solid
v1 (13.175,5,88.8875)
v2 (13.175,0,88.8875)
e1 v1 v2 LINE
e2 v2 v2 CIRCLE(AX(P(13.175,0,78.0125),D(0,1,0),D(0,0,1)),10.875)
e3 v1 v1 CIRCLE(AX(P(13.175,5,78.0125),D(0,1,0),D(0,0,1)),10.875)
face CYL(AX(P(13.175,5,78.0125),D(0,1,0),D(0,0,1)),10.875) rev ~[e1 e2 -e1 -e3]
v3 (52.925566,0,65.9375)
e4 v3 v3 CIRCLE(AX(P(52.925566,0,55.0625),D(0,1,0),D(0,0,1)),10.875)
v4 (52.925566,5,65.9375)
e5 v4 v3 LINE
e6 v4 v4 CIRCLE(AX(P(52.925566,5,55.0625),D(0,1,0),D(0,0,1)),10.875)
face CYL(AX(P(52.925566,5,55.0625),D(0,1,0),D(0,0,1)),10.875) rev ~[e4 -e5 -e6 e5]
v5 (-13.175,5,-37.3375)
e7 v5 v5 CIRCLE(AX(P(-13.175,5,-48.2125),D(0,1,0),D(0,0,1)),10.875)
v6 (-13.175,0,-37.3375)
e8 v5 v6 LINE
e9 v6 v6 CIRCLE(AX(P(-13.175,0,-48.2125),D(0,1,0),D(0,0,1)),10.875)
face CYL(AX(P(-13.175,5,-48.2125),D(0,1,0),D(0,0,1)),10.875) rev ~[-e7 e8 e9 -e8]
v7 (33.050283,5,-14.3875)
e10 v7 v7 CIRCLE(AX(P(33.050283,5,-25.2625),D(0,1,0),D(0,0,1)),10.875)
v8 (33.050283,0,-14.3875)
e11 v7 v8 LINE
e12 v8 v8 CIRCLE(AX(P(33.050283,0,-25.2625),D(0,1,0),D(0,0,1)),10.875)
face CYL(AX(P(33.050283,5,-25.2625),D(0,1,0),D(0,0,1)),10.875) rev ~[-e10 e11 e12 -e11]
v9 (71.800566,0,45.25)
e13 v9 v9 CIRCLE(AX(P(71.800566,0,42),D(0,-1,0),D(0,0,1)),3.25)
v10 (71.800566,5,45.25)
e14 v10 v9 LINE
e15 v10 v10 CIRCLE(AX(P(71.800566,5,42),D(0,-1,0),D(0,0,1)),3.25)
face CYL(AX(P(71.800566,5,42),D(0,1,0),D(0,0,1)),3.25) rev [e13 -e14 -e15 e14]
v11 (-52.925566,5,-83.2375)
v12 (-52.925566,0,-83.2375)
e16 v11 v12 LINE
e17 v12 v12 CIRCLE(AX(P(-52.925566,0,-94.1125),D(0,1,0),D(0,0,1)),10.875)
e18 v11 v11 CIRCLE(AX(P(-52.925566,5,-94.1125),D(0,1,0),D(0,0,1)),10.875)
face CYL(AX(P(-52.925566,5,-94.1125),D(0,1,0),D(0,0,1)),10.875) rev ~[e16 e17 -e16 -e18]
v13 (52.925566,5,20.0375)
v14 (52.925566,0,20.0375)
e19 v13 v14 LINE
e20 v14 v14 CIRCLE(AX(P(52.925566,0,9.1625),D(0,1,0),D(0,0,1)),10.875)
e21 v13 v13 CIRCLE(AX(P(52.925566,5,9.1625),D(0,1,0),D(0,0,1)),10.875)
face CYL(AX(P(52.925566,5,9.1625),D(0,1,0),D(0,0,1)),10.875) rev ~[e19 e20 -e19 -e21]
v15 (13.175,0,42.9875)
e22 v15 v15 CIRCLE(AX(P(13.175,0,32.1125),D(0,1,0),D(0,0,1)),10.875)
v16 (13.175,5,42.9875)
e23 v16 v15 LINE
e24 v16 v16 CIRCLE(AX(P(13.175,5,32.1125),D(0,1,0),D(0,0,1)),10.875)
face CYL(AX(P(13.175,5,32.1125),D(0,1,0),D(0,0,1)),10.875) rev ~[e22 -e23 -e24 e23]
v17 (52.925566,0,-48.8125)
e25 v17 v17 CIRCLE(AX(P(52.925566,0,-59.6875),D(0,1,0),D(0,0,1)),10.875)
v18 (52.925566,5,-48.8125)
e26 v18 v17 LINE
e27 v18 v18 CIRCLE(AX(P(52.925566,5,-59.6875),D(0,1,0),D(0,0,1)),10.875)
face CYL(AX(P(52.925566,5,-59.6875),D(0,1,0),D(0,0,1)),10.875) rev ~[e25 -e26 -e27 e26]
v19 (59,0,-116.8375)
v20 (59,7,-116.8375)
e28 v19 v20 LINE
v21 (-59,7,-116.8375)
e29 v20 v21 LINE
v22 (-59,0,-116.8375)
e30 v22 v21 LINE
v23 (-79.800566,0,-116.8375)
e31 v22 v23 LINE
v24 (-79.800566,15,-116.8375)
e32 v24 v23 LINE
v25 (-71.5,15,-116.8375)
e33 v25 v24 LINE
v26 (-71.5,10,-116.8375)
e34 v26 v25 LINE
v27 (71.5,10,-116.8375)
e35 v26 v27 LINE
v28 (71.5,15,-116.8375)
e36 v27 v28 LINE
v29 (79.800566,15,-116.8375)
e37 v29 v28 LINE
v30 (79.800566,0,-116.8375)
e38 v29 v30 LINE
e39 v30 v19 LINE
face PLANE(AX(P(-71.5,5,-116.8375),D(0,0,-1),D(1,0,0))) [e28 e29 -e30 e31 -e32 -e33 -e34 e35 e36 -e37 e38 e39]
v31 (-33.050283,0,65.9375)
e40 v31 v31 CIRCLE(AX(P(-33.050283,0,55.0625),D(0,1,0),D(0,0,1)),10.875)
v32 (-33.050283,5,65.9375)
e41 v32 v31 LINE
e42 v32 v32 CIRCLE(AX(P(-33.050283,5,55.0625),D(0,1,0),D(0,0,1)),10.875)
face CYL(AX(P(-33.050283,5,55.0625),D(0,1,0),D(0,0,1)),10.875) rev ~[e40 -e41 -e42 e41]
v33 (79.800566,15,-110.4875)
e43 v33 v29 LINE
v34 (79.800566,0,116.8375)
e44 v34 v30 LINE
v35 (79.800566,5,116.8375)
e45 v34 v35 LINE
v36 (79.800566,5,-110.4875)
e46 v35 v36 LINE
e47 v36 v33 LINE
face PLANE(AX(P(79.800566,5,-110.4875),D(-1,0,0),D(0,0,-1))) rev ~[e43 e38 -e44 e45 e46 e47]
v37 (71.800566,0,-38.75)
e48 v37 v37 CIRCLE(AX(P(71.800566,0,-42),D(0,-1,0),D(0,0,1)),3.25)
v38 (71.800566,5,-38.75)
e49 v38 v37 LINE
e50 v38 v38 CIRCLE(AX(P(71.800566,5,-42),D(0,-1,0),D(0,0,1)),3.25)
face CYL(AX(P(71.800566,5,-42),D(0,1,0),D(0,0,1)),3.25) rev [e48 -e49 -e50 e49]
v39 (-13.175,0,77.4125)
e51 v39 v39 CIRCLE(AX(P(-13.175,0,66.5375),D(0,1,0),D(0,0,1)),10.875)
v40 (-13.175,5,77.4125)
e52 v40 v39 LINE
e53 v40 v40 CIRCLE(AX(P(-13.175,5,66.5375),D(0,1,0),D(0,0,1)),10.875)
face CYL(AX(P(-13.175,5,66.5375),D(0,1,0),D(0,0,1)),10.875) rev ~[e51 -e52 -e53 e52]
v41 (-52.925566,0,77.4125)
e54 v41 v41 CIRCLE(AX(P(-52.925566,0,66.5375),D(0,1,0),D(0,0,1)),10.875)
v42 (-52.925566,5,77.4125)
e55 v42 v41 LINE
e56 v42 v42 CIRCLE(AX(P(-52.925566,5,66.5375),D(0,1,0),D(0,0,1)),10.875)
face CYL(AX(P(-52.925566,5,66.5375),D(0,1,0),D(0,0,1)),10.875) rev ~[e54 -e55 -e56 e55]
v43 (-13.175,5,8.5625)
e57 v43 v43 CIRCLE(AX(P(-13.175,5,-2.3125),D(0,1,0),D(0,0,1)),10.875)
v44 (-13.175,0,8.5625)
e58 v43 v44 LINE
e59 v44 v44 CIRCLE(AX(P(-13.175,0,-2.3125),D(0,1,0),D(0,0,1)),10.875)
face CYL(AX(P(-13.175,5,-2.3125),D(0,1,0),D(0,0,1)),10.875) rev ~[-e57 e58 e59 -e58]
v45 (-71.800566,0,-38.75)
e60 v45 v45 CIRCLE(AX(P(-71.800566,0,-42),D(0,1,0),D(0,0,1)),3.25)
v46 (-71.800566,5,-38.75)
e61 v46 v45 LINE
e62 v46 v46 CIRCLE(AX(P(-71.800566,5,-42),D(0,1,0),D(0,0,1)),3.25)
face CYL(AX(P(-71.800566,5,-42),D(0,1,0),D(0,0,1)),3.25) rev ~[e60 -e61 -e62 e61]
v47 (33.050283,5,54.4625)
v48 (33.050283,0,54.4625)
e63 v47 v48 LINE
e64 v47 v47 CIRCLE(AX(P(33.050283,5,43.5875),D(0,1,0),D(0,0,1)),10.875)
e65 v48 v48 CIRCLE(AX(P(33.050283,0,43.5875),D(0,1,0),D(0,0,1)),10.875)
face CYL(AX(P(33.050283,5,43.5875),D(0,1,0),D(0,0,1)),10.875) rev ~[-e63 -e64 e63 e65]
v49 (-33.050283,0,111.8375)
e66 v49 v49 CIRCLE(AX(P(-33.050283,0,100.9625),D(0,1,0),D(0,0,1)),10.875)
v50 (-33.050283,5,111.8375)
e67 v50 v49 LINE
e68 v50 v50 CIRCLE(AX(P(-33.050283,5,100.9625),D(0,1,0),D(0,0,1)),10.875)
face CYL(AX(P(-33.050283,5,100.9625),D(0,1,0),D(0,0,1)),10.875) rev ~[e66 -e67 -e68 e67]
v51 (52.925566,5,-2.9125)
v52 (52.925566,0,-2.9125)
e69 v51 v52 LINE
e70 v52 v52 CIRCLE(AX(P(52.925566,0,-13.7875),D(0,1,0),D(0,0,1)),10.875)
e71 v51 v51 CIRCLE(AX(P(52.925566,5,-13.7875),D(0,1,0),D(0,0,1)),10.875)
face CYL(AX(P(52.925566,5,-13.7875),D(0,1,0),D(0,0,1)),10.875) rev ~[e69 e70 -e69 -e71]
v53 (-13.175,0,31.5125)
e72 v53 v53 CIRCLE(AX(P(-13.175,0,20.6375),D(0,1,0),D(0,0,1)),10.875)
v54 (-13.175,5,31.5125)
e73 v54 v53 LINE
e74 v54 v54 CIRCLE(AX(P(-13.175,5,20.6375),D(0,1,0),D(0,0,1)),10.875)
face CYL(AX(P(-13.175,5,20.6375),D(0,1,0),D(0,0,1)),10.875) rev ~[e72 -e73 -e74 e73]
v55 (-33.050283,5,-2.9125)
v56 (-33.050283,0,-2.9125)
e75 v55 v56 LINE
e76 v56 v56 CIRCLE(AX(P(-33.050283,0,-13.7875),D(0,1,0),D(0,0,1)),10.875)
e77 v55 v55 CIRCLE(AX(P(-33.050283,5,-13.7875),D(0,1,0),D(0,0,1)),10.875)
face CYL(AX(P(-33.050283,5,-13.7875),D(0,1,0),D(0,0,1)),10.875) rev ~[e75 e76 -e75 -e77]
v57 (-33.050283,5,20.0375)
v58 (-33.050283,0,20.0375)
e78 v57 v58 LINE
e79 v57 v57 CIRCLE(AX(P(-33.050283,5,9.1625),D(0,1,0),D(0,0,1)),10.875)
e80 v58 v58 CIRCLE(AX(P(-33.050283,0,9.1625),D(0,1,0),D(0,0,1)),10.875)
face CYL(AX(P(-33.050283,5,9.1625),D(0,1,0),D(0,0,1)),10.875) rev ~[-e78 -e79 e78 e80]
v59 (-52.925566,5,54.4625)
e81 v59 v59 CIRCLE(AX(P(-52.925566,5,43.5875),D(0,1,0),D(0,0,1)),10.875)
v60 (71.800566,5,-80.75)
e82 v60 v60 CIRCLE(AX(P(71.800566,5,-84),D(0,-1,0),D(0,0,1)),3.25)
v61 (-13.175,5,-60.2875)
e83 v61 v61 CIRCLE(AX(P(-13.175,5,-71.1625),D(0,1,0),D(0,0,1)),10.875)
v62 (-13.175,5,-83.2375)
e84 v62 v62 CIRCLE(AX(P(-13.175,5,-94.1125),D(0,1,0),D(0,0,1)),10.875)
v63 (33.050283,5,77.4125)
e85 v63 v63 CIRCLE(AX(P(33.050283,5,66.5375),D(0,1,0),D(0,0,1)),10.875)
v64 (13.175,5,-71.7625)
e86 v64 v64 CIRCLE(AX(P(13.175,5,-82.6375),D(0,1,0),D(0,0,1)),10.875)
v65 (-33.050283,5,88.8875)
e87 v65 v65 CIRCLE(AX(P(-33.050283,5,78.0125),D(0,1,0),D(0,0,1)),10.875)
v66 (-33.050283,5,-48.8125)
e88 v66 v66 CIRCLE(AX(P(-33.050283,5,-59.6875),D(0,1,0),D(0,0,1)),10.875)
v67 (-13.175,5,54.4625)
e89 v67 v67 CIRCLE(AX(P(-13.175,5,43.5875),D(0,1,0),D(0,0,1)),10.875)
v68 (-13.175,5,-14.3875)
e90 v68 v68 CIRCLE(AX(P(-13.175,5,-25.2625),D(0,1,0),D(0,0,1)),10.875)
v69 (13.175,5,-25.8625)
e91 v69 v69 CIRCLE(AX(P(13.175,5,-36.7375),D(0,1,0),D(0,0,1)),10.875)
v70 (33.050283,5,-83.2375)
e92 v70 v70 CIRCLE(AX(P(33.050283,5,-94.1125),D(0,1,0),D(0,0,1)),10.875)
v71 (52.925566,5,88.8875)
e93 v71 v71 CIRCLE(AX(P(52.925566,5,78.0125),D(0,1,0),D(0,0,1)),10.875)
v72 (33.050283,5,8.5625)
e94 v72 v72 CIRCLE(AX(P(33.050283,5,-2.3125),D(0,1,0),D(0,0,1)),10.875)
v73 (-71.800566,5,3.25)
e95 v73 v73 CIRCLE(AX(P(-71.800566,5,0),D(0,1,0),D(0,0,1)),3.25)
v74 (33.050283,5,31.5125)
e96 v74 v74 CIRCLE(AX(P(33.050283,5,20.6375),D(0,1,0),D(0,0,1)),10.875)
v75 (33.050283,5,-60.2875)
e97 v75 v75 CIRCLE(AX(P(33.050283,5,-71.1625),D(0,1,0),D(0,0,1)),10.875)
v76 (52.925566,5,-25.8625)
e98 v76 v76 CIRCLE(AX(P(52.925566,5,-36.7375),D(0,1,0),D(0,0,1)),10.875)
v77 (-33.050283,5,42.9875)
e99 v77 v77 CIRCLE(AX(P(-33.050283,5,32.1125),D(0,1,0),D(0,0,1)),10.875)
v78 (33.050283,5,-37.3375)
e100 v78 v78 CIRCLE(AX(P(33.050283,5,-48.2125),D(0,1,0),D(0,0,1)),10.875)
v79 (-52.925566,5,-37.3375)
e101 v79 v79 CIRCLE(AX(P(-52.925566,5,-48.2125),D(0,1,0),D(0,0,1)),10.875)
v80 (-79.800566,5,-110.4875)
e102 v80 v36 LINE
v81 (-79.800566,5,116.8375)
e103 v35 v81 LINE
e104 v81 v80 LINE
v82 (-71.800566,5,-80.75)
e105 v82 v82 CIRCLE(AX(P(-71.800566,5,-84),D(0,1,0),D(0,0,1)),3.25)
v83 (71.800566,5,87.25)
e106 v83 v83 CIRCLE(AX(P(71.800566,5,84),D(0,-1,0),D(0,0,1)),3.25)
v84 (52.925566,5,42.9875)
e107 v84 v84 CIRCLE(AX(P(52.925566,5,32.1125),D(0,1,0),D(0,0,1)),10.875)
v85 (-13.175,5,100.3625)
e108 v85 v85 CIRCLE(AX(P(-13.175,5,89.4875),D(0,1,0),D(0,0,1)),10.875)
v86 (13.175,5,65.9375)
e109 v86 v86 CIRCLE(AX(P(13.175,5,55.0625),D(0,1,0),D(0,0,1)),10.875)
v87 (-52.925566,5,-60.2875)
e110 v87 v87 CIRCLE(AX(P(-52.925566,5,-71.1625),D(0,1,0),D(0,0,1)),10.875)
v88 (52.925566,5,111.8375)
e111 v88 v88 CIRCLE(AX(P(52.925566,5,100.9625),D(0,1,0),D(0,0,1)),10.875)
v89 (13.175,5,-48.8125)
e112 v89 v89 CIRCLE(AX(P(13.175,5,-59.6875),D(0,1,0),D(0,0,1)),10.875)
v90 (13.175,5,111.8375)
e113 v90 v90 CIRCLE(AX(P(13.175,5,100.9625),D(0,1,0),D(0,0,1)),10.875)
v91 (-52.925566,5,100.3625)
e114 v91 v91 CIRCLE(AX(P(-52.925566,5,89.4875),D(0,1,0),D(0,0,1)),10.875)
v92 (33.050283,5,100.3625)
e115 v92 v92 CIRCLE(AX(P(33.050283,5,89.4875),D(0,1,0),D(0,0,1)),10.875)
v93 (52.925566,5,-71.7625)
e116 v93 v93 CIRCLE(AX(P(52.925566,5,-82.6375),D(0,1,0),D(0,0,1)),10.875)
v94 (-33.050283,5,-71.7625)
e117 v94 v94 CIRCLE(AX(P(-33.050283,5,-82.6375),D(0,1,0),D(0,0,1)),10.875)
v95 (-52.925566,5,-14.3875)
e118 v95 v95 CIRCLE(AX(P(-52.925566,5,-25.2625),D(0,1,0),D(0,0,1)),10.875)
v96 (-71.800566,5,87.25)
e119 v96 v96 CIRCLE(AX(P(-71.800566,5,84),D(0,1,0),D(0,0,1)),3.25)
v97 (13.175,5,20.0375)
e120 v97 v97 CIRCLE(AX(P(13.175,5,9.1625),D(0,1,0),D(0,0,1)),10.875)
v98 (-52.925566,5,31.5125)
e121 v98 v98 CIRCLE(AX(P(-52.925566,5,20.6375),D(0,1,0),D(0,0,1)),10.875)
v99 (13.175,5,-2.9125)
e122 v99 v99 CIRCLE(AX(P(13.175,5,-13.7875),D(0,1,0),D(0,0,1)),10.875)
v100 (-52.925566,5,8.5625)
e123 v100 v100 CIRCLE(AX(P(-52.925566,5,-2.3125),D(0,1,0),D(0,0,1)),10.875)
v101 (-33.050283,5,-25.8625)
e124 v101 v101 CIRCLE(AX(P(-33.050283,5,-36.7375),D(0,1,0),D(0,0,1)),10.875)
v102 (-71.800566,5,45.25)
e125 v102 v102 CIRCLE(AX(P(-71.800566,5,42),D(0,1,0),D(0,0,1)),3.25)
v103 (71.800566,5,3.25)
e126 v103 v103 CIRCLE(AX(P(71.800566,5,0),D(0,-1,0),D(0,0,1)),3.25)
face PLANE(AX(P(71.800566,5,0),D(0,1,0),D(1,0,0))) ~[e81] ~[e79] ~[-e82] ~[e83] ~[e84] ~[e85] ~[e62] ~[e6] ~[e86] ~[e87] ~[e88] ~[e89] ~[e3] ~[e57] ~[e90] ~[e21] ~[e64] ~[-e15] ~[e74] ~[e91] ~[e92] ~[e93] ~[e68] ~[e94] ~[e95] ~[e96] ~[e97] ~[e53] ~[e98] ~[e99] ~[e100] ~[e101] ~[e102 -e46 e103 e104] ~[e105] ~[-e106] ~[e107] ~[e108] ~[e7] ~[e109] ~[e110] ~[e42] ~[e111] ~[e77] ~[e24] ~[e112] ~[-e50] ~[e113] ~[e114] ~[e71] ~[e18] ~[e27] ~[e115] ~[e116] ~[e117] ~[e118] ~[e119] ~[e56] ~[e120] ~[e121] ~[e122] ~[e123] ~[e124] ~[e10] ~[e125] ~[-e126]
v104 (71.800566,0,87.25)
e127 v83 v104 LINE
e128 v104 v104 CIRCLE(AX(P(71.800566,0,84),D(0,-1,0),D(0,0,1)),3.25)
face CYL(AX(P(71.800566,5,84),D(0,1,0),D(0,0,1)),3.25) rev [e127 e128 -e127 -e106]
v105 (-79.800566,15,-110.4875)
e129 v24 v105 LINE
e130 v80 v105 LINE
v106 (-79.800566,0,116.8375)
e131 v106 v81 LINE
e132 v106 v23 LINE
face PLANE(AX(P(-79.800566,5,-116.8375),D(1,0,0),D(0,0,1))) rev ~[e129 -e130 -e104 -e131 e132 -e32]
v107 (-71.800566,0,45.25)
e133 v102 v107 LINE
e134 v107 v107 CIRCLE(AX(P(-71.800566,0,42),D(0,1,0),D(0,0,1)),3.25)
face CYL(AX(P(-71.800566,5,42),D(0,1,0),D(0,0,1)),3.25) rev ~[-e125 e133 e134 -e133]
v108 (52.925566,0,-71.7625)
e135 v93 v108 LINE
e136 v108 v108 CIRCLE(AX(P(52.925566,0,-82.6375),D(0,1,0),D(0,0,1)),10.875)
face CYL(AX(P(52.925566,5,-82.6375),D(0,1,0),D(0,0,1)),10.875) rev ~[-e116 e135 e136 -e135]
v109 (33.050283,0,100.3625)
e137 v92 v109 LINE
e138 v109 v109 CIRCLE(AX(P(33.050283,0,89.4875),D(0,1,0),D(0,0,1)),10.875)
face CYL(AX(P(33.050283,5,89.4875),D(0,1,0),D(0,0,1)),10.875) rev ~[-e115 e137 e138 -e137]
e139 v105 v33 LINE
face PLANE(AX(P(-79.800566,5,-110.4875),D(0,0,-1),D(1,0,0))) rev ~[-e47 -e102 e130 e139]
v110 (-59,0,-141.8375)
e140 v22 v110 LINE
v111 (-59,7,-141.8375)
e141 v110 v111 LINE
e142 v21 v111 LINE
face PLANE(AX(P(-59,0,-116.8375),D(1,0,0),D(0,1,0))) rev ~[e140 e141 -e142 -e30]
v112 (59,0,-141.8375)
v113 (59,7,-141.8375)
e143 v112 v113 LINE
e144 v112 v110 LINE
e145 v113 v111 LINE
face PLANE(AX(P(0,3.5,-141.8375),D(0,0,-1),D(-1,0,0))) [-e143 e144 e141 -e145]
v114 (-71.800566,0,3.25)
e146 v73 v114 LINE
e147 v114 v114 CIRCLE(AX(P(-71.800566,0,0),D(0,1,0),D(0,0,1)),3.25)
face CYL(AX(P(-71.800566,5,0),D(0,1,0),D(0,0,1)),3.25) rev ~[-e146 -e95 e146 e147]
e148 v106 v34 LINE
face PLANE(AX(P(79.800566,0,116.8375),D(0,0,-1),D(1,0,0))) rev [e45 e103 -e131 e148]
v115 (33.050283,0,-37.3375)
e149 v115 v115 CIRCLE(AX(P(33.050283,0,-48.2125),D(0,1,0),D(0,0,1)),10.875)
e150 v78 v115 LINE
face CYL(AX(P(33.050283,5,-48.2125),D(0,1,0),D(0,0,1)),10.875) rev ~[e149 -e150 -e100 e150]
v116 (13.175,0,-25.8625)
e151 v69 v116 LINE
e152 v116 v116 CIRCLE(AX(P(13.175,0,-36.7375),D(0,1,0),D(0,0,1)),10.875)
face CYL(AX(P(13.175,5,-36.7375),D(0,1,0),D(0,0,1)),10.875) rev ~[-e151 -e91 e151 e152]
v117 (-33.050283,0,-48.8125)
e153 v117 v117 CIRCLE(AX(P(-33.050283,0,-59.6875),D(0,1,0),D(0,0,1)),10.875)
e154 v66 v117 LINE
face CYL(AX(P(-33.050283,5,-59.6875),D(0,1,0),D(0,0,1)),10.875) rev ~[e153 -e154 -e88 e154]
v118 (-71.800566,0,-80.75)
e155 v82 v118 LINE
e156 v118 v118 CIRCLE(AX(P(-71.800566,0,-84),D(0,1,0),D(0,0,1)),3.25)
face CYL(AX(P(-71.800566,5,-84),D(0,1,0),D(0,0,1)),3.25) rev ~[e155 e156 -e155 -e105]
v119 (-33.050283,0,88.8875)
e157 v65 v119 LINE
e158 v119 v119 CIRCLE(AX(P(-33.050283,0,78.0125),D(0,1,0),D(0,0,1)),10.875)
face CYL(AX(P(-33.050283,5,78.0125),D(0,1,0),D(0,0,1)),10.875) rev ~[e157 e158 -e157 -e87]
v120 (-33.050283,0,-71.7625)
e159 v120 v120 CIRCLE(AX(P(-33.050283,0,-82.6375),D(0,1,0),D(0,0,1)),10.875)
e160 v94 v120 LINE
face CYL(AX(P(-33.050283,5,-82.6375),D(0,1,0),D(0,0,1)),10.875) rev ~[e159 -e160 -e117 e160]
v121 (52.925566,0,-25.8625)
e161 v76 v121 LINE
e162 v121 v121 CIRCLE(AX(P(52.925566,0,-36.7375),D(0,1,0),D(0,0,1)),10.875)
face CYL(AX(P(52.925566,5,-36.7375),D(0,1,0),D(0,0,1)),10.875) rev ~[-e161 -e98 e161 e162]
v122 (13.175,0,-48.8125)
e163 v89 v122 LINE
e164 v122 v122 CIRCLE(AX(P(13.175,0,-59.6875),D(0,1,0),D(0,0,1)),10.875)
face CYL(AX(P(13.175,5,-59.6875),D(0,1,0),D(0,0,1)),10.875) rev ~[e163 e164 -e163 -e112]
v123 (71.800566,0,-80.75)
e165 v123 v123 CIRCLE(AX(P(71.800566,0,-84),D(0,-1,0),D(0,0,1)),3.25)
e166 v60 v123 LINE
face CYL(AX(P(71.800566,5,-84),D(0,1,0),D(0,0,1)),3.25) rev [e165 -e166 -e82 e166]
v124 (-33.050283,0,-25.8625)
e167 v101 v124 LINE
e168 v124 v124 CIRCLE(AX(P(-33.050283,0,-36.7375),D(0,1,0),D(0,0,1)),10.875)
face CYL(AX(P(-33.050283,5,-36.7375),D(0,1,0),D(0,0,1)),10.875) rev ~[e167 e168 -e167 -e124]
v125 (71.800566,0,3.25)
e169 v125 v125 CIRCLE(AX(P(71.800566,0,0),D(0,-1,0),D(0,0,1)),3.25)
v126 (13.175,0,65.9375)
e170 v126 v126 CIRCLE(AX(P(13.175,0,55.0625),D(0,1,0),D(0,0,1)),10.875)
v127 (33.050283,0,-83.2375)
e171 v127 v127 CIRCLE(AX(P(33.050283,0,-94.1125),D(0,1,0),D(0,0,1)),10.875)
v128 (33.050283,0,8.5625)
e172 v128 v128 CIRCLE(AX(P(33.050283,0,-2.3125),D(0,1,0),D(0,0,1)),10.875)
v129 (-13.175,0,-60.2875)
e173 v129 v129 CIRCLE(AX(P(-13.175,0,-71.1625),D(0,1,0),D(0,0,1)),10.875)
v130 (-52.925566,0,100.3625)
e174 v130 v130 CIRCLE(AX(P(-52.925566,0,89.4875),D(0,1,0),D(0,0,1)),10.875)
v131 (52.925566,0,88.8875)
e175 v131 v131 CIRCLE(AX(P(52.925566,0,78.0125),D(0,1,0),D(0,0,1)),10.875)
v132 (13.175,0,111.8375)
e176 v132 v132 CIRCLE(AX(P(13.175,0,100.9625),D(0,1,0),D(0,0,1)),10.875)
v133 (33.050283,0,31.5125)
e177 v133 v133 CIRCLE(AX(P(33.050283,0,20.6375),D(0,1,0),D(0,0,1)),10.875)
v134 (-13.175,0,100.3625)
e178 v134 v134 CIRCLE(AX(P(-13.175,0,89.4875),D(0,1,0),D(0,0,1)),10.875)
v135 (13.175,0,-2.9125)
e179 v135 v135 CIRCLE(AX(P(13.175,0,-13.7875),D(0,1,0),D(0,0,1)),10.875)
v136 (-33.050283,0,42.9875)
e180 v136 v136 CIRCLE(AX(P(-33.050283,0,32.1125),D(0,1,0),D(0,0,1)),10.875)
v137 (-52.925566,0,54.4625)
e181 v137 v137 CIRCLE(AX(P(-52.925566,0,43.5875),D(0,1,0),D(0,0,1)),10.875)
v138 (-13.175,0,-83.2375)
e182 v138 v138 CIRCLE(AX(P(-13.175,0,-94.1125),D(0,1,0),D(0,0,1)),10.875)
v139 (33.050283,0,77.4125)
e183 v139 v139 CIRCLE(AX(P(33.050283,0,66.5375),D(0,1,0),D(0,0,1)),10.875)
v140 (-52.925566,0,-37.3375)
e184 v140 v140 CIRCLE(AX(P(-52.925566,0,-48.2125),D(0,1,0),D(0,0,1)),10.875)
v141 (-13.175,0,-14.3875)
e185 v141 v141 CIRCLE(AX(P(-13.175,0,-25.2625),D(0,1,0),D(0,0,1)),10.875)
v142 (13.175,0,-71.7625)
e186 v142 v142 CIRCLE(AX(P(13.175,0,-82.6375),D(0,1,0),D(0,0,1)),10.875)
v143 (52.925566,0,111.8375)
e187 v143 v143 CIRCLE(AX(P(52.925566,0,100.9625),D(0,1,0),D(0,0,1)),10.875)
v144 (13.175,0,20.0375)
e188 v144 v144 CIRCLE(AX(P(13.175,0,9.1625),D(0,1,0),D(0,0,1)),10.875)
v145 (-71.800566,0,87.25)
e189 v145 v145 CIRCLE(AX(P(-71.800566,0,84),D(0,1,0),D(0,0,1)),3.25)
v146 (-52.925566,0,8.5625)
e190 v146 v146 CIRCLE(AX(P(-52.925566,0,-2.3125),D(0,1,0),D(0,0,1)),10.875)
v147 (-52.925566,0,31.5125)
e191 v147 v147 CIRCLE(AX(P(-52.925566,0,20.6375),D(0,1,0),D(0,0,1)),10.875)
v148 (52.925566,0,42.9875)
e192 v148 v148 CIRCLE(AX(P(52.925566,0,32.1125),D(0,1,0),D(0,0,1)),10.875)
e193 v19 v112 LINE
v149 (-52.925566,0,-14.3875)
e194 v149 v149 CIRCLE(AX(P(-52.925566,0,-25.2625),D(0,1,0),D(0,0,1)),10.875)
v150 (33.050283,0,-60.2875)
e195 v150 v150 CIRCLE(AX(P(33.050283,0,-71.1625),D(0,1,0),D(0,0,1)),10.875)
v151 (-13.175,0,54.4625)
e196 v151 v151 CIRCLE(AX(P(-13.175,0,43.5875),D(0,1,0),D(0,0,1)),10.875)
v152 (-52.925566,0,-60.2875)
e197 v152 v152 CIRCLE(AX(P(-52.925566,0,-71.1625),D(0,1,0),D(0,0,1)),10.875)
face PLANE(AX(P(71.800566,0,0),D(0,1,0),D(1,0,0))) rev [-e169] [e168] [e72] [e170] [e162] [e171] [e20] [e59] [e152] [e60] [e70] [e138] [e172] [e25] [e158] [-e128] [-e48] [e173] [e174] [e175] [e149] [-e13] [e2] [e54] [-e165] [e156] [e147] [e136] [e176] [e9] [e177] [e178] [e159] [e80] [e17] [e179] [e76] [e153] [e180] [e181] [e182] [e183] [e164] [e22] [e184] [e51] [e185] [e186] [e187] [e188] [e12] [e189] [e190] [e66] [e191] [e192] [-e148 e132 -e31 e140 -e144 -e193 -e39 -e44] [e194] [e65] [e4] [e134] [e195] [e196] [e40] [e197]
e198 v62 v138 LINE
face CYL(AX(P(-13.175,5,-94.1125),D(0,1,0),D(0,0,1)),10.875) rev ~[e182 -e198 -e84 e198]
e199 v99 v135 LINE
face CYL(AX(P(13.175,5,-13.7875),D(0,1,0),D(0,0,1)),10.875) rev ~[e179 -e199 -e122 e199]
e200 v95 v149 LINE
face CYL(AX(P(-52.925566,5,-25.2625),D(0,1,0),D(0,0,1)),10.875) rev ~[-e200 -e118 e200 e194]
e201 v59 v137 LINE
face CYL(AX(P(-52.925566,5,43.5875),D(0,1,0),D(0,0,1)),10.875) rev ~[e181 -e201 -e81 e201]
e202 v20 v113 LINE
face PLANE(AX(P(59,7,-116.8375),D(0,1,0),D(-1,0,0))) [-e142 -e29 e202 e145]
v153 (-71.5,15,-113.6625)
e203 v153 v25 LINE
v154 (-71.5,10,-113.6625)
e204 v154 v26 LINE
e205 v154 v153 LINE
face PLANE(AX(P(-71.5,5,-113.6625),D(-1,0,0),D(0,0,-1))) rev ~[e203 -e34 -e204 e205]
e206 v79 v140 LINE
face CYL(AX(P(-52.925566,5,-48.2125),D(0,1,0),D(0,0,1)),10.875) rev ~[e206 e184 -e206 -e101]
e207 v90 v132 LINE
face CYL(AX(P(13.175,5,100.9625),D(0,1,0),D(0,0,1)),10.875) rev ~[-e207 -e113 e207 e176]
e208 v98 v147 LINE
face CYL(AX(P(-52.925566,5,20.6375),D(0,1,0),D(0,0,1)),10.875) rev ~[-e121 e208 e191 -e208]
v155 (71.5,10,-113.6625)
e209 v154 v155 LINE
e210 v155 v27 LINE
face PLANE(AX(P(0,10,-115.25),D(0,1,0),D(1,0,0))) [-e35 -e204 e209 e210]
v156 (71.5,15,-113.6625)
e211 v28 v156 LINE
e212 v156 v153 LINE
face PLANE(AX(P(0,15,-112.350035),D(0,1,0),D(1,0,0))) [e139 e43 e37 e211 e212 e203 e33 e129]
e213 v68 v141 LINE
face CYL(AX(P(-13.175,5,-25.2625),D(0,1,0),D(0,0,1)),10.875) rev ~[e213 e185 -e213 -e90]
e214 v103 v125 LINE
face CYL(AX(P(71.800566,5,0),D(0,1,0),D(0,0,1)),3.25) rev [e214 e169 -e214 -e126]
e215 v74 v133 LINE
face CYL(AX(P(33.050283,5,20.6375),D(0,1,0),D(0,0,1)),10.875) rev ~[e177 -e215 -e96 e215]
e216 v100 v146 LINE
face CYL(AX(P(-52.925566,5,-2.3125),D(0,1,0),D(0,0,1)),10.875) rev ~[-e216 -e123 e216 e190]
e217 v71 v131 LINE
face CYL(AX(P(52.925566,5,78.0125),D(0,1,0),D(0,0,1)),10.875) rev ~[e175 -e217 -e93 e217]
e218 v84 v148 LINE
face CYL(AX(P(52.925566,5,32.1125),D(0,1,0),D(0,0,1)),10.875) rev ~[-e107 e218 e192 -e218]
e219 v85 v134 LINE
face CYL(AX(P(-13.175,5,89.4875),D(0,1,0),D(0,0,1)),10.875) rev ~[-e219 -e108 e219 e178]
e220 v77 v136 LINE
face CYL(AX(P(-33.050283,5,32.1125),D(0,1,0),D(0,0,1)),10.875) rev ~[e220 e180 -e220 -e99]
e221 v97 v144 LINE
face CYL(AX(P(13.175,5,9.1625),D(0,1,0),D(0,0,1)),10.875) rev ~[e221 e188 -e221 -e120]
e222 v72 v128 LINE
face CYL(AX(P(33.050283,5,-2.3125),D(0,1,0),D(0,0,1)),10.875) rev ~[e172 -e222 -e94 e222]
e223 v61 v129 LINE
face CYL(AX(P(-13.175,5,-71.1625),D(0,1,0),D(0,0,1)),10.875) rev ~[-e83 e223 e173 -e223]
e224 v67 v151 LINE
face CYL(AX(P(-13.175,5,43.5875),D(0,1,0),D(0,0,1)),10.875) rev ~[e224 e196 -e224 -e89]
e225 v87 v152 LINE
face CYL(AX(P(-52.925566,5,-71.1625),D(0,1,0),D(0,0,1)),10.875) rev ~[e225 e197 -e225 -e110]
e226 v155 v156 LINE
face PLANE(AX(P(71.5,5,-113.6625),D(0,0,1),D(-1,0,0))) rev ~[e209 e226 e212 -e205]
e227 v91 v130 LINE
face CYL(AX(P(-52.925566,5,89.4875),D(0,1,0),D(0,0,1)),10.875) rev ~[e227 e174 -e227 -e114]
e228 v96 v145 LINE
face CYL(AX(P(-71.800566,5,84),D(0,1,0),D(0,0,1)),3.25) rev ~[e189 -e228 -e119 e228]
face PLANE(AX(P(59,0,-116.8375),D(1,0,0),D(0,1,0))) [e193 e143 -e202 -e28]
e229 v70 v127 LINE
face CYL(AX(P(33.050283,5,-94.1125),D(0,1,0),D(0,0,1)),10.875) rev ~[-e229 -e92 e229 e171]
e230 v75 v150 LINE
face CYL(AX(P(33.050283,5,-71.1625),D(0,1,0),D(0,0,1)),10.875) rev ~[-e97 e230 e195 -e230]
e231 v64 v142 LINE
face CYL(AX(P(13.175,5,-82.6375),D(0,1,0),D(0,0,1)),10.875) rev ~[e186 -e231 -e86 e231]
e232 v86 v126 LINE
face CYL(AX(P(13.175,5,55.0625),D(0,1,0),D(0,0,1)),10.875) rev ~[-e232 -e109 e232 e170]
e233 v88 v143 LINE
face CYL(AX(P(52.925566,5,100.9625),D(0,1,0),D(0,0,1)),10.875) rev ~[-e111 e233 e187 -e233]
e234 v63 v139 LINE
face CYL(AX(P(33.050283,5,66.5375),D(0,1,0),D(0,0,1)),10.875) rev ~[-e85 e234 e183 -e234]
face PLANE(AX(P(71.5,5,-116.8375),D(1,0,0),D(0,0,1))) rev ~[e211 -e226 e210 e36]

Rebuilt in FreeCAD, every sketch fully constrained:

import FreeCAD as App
import Part
import Sketcher
from FreeCAD import Vector


def add_polygon(sketch, points):
    """Adds a closed chain of lines whose ends are joined by coincident constraints."""
    first, n = sketch.GeometryCount, len(points)
    for a, b in zip(points, points[1:] + points[:1]):
        sketch.addGeometry(Part.LineSegment(App.Vector(*a, 0), App.Vector(*b, 0)), False)
    for i in range(n):
        sketch.addConstraint(Sketcher.Constraint("Coincident", first + i, 2, first + (i + 1) % n, 1))

doc = App.newDocument("Part")
body = doc.addObject("PartDesign::Body", "Body")

sketch1 = doc.addObject("Sketcher::SketchObject", "Sketch")
body.addObject(sketch1)
sketch1.AttachmentSupport = (doc.XZ_Plane, [""])
sketch1.MapMode = "FlatFace"
add_polygon(sketch1, [(-64, -117), (-64, 117), (64, 117), (64, -117)])
sketch1.addConstraint(Sketcher.Constraint("Vertical", 0))
sketch1.addConstraint(Sketcher.Constraint("Horizontal", 1))
sketch1.addConstraint(Sketcher.Constraint("Vertical", 2))
sketch1.addConstraint(Sketcher.Constraint("Horizontal", 3))
sketch1.addConstraint(Sketcher.Constraint("Symmetric", 0, 2, 2, 2, -1, 1))
sketch1.addConstraint(Sketcher.Constraint("DistanceY", 0, 1, 0, 2, 233.675))
sketch1.addConstraint(Sketcher.Constraint("DistanceX", 1, 1, 1, 2, 127.601132))
pad1 = doc.addObject("PartDesign::Pad", "Pad")
body.addObject(pad1)
pad1.Profile = sketch1
pad1.Length = 5
pad1.Reversed = True

sketch2 = doc.addObject("Sketcher::SketchObject", "Sketch001")
body.addObject(sketch2)
sketch2.AttachmentSupport = (doc.XZ_Plane, [""])
sketch2.MapMode = "FlatFace"
add_polygon(sketch2, [(-80, -117), (-80, 117), (-64, 117), (-64, -117)])
sketch2.addConstraint(Sketcher.Constraint("Vertical", 0))
sketch2.addConstraint(Sketcher.Constraint("Horizontal", 1))
sketch2.addConstraint(Sketcher.Constraint("Vertical", 2))
sketch2.addConstraint(Sketcher.Constraint("Horizontal", 3))
sketch2.addConstraint(Sketcher.Constraint("DistanceX", 1, 1, 1, 2, 16.0))
sketch2.addConstraint(Sketcher.Constraint("DistanceY", 0, 1, 0, 2, 233.675))
sketch2.addConstraint(Sketcher.Constraint("DistanceY", -1, 1, 0, 2, 116.8375))
sketch2.addConstraint(Sketcher.Constraint("DistanceX", 0, 2, -1, 1, 79.800566))
pad2 = doc.addObject("PartDesign::Pad", "Pad001")
body.addObject(pad2)
pad2.Profile = sketch2
pad2.Length = 5
pad2.Reversed = True
doc.recompute()

mirrored = doc.addObject("PartDesign::Mirrored", "Mirrored")
body.addObject(mirrored)
mirrored.Originals = [pad2]
mirrored.MirrorPlane = (doc.YZ_Plane, [""])
body.Tip = mirrored

sketch3 = doc.addObject("Sketcher::SketchObject", "Sketch002")
body.addObject(sketch3)
sketch3.AttachmentSupport = (doc.XZ_Plane, [""])
sketch3.MapMode = "FlatFace"
sketch3.AttachmentOffset = App.Placement(Vector(0, 0, -5), App.Rotation())
sketch3.addGeometry(Part.Circle(Vector(-71.8, 0, 0), Vector(0, 0, 1), 3.2), False)
sketch3.addGeometry(Part.Circle(Vector(-71.8, 42, 0), Vector(0, 0, 1), 3.2), False)
sketch3.addGeometry(Part.Circle(Vector(-71.8, 84, 0), Vector(0, 0, 1), 3.2), False)
sketch3.addGeometry(Part.Circle(Vector(-71.8, -42, 0), Vector(0, 0, 1), 3.2), False)
sketch3.addGeometry(Part.Circle(Vector(-71.8, -84, 0), Vector(0, 0, 1), 3.2), False)
sketch3.addConstraint(Sketcher.Constraint("Equal", 0, 1))
sketch3.addConstraint(Sketcher.Constraint("Equal", 1, 2))
sketch3.addConstraint(Sketcher.Constraint("Equal", 2, 3))
sketch3.addConstraint(Sketcher.Constraint("Equal", 3, 4))
sketch3.addConstraint(Sketcher.Constraint("Symmetric", 1, 3, 3, 3, -1))
sketch3.addConstraint(Sketcher.Constraint("Symmetric", 2, 3, 4, 3, -1))
sketch3.addConstraint(Sketcher.Constraint("PointOnObject", 0, 3, -1))
sketch3.addConstraint(Sketcher.Constraint("Vertical", 0, 3, 1, 3))
sketch3.addConstraint(Sketcher.Constraint("Vertical", 1, 3, 2, 3))
sketch3.addConstraint(Sketcher.Constraint("Diameter", 0, 6.5))
sketch3.addConstraint(Sketcher.Constraint("DistanceY", -1, 1, 1, 3, 42.0))
sketch3.addConstraint(Sketcher.Constraint("DistanceY", -1, 1, 2, 3, 84.0))
sketch3.addConstraint(Sketcher.Constraint("DistanceX", 0, 3, -1, 1, 71.800566))
pocket1 = doc.addObject("PartDesign::Pocket", "Pocket")
body.addObject(pocket1)
pocket1.Profile = sketch3
pocket1.Length = 5
pocket1.Reversed = True
doc.recompute()

mirrored2 = doc.addObject("PartDesign::Mirrored", "Mirrored001")
body.addObject(mirrored2)
mirrored2.Originals = [pocket1]
mirrored2.MirrorPlane = (doc.YZ_Plane, [""])
body.Tip = mirrored2

sketch4 = doc.addObject("Sketcher::SketchObject", "Sketch003")
body.addObject(sketch4)
sketch4.AttachmentSupport = (doc.XZ_Plane, [""])
sketch4.MapMode = "FlatFace"
sketch4.AttachmentOffset = App.Placement(Vector(0, 0, -5), App.Rotation())
sketch4.addGeometry(Part.Circle(Vector(-33, -83, 0), Vector(0, 0, 1), 11), False)
sketch4.addGeometry(Part.Circle(Vector(-53, -94, 0), Vector(0, 0, 1), 11), False)
sketch4.addGeometry(Part.Circle(Vector(-13, -94, 0), Vector(0, 0, 1), 11), False)
sketch4.addGeometry(Part.Circle(Vector(-53, -71, 0), Vector(0, 0, 1), 11), False)
sketch4.addGeometry(Part.Circle(Vector(-33, -60, 0), Vector(0, 0, 1), 11), False)
sketch4.addGeometry(Part.Circle(Vector(-13, -71, 0), Vector(0, 0, 1), 11), False)
sketch4.addGeometry(Part.Circle(Vector(-53, -48, 0), Vector(0, 0, 1), 11), False)
sketch4.addGeometry(Part.Circle(Vector(-33, -37, 0), Vector(0, 0, 1), 11), False)
sketch4.addGeometry(Part.Circle(Vector(-13, -48, 0), Vector(0, 0, 1), 11), False)
sketch4.addGeometry(Part.Circle(Vector(-53, -25, 0), Vector(0, 0, 1), 11), False)
sketch4.addGeometry(Part.Circle(Vector(-33, -14, 0), Vector(0, 0, 1), 11), False)
sketch4.addGeometry(Part.Circle(Vector(-13, -25, 0), Vector(0, 0, 1), 11), False)
sketch4.addGeometry(Part.Circle(Vector(-53, -2, 0), Vector(0, 0, 1), 11), False)
sketch4.addGeometry(Part.Circle(Vector(-33, 9, 0), Vector(0, 0, 1), 11), False)
sketch4.addGeometry(Part.Circle(Vector(-13, -2, 0), Vector(0, 0, 1), 11), False)
sketch4.addGeometry(Part.Circle(Vector(-53, 21, 0), Vector(0, 0, 1), 11), False)
sketch4.addGeometry(Part.Circle(Vector(-33, 32, 0), Vector(0, 0, 1), 11), False)
sketch4.addGeometry(Part.Circle(Vector(-13, 21, 0), Vector(0, 0, 1), 11), False)
sketch4.addGeometry(Part.Circle(Vector(-53, 44, 0), Vector(0, 0, 1), 11), False)
sketch4.addGeometry(Part.Circle(Vector(-33, 55, 0), Vector(0, 0, 1), 11), False)
sketch4.addGeometry(Part.Circle(Vector(-13, 44, 0), Vector(0, 0, 1), 11), False)
sketch4.addGeometry(Part.Circle(Vector(-53, 67, 0), Vector(0, 0, 1), 11), False)
sketch4.addGeometry(Part.Circle(Vector(-33, 78, 0), Vector(0, 0, 1), 11), False)
sketch4.addGeometry(Part.Circle(Vector(-13, 67, 0), Vector(0, 0, 1), 11), False)
sketch4.addGeometry(Part.Circle(Vector(-53, 89, 0), Vector(0, 0, 1), 11), False)
sketch4.addGeometry(Part.Circle(Vector(-33, 101, 0), Vector(0, 0, 1), 11), False)
sketch4.addGeometry(Part.Circle(Vector(-13, 89, 0), Vector(0, 0, 1), 11), False)
sketch4.addGeometry(Part.Circle(Vector(33, -94, 0), Vector(0, 0, 1), 11), False)
sketch4.addGeometry(Part.Circle(Vector(13, -83, 0), Vector(0, 0, 1), 11), False)
sketch4.addGeometry(Part.Circle(Vector(53, -83, 0), Vector(0, 0, 1), 11), False)
sketch4.addGeometry(Part.Circle(Vector(13, -60, 0), Vector(0, 0, 1), 11), False)
sketch4.addGeometry(Part.Circle(Vector(33, -71, 0), Vector(0, 0, 1), 11), False)
sketch4.addGeometry(Part.Circle(Vector(53, -60, 0), Vector(0, 0, 1), 11), False)
sketch4.addGeometry(Part.Circle(Vector(13, -37, 0), Vector(0, 0, 1), 11), False)
sketch4.addGeometry(Part.Circle(Vector(33, -48, 0), Vector(0, 0, 1), 11), False)
sketch4.addGeometry(Part.Circle(Vector(53, -37, 0), Vector(0, 0, 1), 11), False)
sketch4.addGeometry(Part.Circle(Vector(13, -14, 0), Vector(0, 0, 1), 11), False)
sketch4.addGeometry(Part.Circle(Vector(33, -25, 0), Vector(0, 0, 1), 11), False)
sketch4.addGeometry(Part.Circle(Vector(53, -14, 0), Vector(0, 0, 1), 11), False)
sketch4.addGeometry(Part.Circle(Vector(13, 9, 0), Vector(0, 0, 1), 11), False)
sketch4.addGeometry(Part.Circle(Vector(33, -2, 0), Vector(0, 0, 1), 11), False)
sketch4.addGeometry(Part.Circle(Vector(53, 9, 0), Vector(0, 0, 1), 11), False)
sketch4.addGeometry(Part.Circle(Vector(13, 32, 0), Vector(0, 0, 1), 11), False)
sketch4.addGeometry(Part.Circle(Vector(33, 21, 0), Vector(0, 0, 1), 11), False)
sketch4.addGeometry(Part.Circle(Vector(53, 32, 0), Vector(0, 0, 1), 11), False)
sketch4.addGeometry(Part.Circle(Vector(13, 55, 0), Vector(0, 0, 1), 11), False)
sketch4.addGeometry(Part.Circle(Vector(33, 44, 0), Vector(0, 0, 1), 11), False)
sketch4.addGeometry(Part.Circle(Vector(53, 55, 0), Vector(0, 0, 1), 11), False)
sketch4.addGeometry(Part.Circle(Vector(13, 78, 0), Vector(0, 0, 1), 11), False)
sketch4.addGeometry(Part.Circle(Vector(33, 67, 0), Vector(0, 0, 1), 11), False)
sketch4.addGeometry(Part.Circle(Vector(53, 78, 0), Vector(0, 0, 1), 11), False)
sketch4.addGeometry(Part.Circle(Vector(13, 101, 0), Vector(0, 0, 1), 11), False)
sketch4.addGeometry(Part.Circle(Vector(33, 89, 0), Vector(0, 0, 1), 11), False)
sketch4.addGeometry(Part.Circle(Vector(53, 101, 0), Vector(0, 0, 1), 11), False)
sketch4.addConstraint(Sketcher.Constraint("Equal", 0, 1))
sketch4.addConstraint(Sketcher.Constraint("Equal", 1, 2))
sketch4.addConstraint(Sketcher.Constraint("Equal", 2, 3))
sketch4.addConstraint(Sketcher.Constraint("Equal", 3, 4))
sketch4.addConstraint(Sketcher.Constraint("Equal", 4, 5))
sketch4.addConstraint(Sketcher.Constraint("Equal", 5, 6))
sketch4.addConstraint(Sketcher.Constraint("Equal", 6, 7))
sketch4.addConstraint(Sketcher.Constraint("Equal", 7, 8))
sketch4.addConstraint(Sketcher.Constraint("Equal", 8, 9))
sketch4.addConstraint(Sketcher.Constraint("Equal", 9, 10))
sketch4.addConstraint(Sketcher.Constraint("Equal", 10, 11))
sketch4.addConstraint(Sketcher.Constraint("Equal", 11, 12))
sketch4.addConstraint(Sketcher.Constraint("Equal", 12, 13))
sketch4.addConstraint(Sketcher.Constraint("Equal", 13, 14))
sketch4.addConstraint(Sketcher.Constraint("Equal", 14, 15))
sketch4.addConstraint(Sketcher.Constraint("Equal", 15, 16))
sketch4.addConstraint(Sketcher.Constraint("Equal", 16, 17))
sketch4.addConstraint(Sketcher.Constraint("Equal", 17, 18))
sketch4.addConstraint(Sketcher.Constraint("Equal", 18, 19))
sketch4.addConstraint(Sketcher.Constraint("Equal", 19, 20))
sketch4.addConstraint(Sketcher.Constraint("Equal", 20, 21))
sketch4.addConstraint(Sketcher.Constraint("Equal", 21, 22))
sketch4.addConstraint(Sketcher.Constraint("Equal", 22, 23))
sketch4.addConstraint(Sketcher.Constraint("Equal", 23, 24))
sketch4.addConstraint(Sketcher.Constraint("Equal", 24, 25))
sketch4.addConstraint(Sketcher.Constraint("Equal", 25, 26))
sketch4.addConstraint(Sketcher.Constraint("Equal", 26, 27))
sketch4.addConstraint(Sketcher.Constraint("Equal", 27, 28))
sketch4.addConstraint(Sketcher.Constraint("Equal", 28, 29))
sketch4.addConstraint(Sketcher.Constraint("Equal", 29, 30))
sketch4.addConstraint(Sketcher.Constraint("Equal", 30, 31))
sketch4.addConstraint(Sketcher.Constraint("Equal", 31, 32))
sketch4.addConstraint(Sketcher.Constraint("Equal", 32, 33))
sketch4.addConstraint(Sketcher.Constraint("Equal", 33, 34))
sketch4.addConstraint(Sketcher.Constraint("Equal", 34, 35))
sketch4.addConstraint(Sketcher.Constraint("Equal", 35, 36))
sketch4.addConstraint(Sketcher.Constraint("Equal", 36, 37))
sketch4.addConstraint(Sketcher.Constraint("Equal", 37, 38))
sketch4.addConstraint(Sketcher.Constraint("Equal", 38, 39))
sketch4.addConstraint(Sketcher.Constraint("Equal", 39, 40))
sketch4.addConstraint(Sketcher.Constraint("Equal", 40, 41))
sketch4.addConstraint(Sketcher.Constraint("Equal", 41, 42))
sketch4.addConstraint(Sketcher.Constraint("Equal", 42, 43))
sketch4.addConstraint(Sketcher.Constraint("Equal", 43, 44))
sketch4.addConstraint(Sketcher.Constraint("Equal", 44, 45))
sketch4.addConstraint(Sketcher.Constraint("Equal", 45, 46))
sketch4.addConstraint(Sketcher.Constraint("Equal", 46, 47))
sketch4.addConstraint(Sketcher.Constraint("Equal", 47, 48))
sketch4.addConstraint(Sketcher.Constraint("Equal", 48, 49))
sketch4.addConstraint(Sketcher.Constraint("Equal", 49, 50))
sketch4.addConstraint(Sketcher.Constraint("Equal", 50, 51))
sketch4.addConstraint(Sketcher.Constraint("Equal", 51, 52))
sketch4.addConstraint(Sketcher.Constraint("Equal", 52, 53))
sketch4.addConstraint(Sketcher.Constraint("Horizontal", 1, 3, 2, 3))
sketch4.addConstraint(Sketcher.Constraint("Horizontal", 3, 3, 5, 3))
sketch4.addConstraint(Sketcher.Constraint("Horizontal", 6, 3, 8, 3))
sketch4.addConstraint(Sketcher.Constraint("Horizontal", 9, 3, 11, 3))
sketch4.addConstraint(Sketcher.Constraint("Horizontal", 12, 3, 14, 3))
sketch4.addConstraint(Sketcher.Constraint("Horizontal", 15, 3, 17, 3))
sketch4.addConstraint(Sketcher.Constraint("Horizontal", 18, 3, 20, 3))
sketch4.addConstraint(Sketcher.Constraint("Horizontal", 21, 3, 23, 3))
sketch4.addConstraint(Sketcher.Constraint("Horizontal", 24, 3, 26, 3))
sketch4.addConstraint(Sketcher.Constraint("Horizontal", 2, 3, 27, 3))
sketch4.addConstraint(Sketcher.Constraint("Horizontal", 0, 3, 28, 3))
sketch4.addConstraint(Sketcher.Constraint("Horizontal", 28, 3, 29, 3))
sketch4.addConstraint(Sketcher.Constraint("Horizontal", 4, 3, 30, 3))
sketch4.addConstraint(Sketcher.Constraint("Horizontal", 5, 3, 31, 3))
sketch4.addConstraint(Sketcher.Constraint("Horizontal", 30, 3, 32, 3))
sketch4.addConstraint(Sketcher.Constraint("Horizontal", 7, 3, 33, 3))
sketch4.addConstraint(Sketcher.Constraint("Horizontal", 8, 3, 34, 3))
sketch4.addConstraint(Sketcher.Constraint("Horizontal", 33, 3, 35, 3))
sketch4.addConstraint(Sketcher.Constraint("Horizontal", 10, 3, 36, 3))
sketch4.addConstraint(Sketcher.Constraint("Horizontal", 11, 3, 37, 3))
sketch4.addConstraint(Sketcher.Constraint("Horizontal", 36, 3, 38, 3))
sketch4.addConstraint(Sketcher.Constraint("Horizontal", 13, 3, 39, 3))
sketch4.addConstraint(Sketcher.Constraint("Horizontal", 14, 3, 40, 3))
sketch4.addConstraint(Sketcher.Constraint("Horizontal", 39, 3, 41, 3))
sketch4.addConstraint(Sketcher.Constraint("Horizontal", 16, 3, 42, 3))
sketch4.addConstraint(Sketcher.Constraint("Horizontal", 17, 3, 43, 3))
sketch4.addConstraint(Sketcher.Constraint("Horizontal", 42, 3, 44, 3))
sketch4.addConstraint(Sketcher.Constraint("Horizontal", 19, 3, 45, 3))
sketch4.addConstraint(Sketcher.Constraint("Horizontal", 20, 3, 46, 3))
sketch4.addConstraint(Sketcher.Constraint("Horizontal", 45, 3, 47, 3))
sketch4.addConstraint(Sketcher.Constraint("Horizontal", 22, 3, 48, 3))
sketch4.addConstraint(Sketcher.Constraint("Horizontal", 23, 3, 49, 3))
sketch4.addConstraint(Sketcher.Constraint("Horizontal", 48, 3, 50, 3))
sketch4.addConstraint(Sketcher.Constraint("Horizontal", 25, 3, 51, 3))
sketch4.addConstraint(Sketcher.Constraint("Horizontal", 26, 3, 52, 3))
sketch4.addConstraint(Sketcher.Constraint("Horizontal", 51, 3, 53, 3))
sketch4.addConstraint(Sketcher.Constraint("Vertical", 1, 3, 3, 3))
sketch4.addConstraint(Sketcher.Constraint("Vertical", 0, 3, 4, 3))
sketch4.addConstraint(Sketcher.Constraint("Vertical", 2, 3, 5, 3))
sketch4.addConstraint(Sketcher.Constraint("Vertical", 3, 3, 6, 3))
sketch4.addConstraint(Sketcher.Constraint("Vertical", 4, 3, 7, 3))
sketch4.addConstraint(Sketcher.Constraint("Vertical", 5, 3, 8, 3))
sketch4.addConstraint(Sketcher.Constraint("Vertical", 6, 3, 9, 3))
sketch4.addConstraint(Sketcher.Constraint("Vertical", 7, 3, 10, 3))
sketch4.addConstraint(Sketcher.Constraint("Vertical", 8, 3, 11, 3))
sketch4.addConstraint(Sketcher.Constraint("Vertical", 9, 3, 12, 3))
sketch4.addConstraint(Sketcher.Constraint("Vertical", 10, 3, 13, 3))
sketch4.addConstraint(Sketcher.Constraint("Vertical", 11, 3, 14, 3))
sketch4.addConstraint(Sketcher.Constraint("Vertical", 12, 3, 15, 3))
sketch4.addConstraint(Sketcher.Constraint("Vertical", 13, 3, 16, 3))
sketch4.addConstraint(Sketcher.Constraint("Vertical", 14, 3, 17, 3))
sketch4.addConstraint(Sketcher.Constraint("Vertical", 15, 3, 18, 3))
sketch4.addConstraint(Sketcher.Constraint("Vertical", 16, 3, 19, 3))
sketch4.addConstraint(Sketcher.Constraint("Vertical", 17, 3, 20, 3))
sketch4.addConstraint(Sketcher.Constraint("Vertical", 18, 3, 21, 3))
sketch4.addConstraint(Sketcher.Constraint("Vertical", 19, 3, 22, 3))
sketch4.addConstraint(Sketcher.Constraint("Vertical", 20, 3, 23, 3))
sketch4.addConstraint(Sketcher.Constraint("Vertical", 21, 3, 24, 3))
sketch4.addConstraint(Sketcher.Constraint("Vertical", 22, 3, 25, 3))
sketch4.addConstraint(Sketcher.Constraint("Vertical", 23, 3, 26, 3))
sketch4.addConstraint(Sketcher.Constraint("Vertical", 28, 3, 30, 3))
sketch4.addConstraint(Sketcher.Constraint("Vertical", 27, 3, 31, 3))
sketch4.addConstraint(Sketcher.Constraint("Vertical", 29, 3, 32, 3))
sketch4.addConstraint(Sketcher.Constraint("Vertical", 30, 3, 33, 3))
sketch4.addConstraint(Sketcher.Constraint("Vertical", 31, 3, 34, 3))
sketch4.addConstraint(Sketcher.Constraint("Vertical", 32, 3, 35, 3))
sketch4.addConstraint(Sketcher.Constraint("Vertical", 33, 3, 36, 3))
sketch4.addConstraint(Sketcher.Constraint("Vertical", 34, 3, 37, 3))
sketch4.addConstraint(Sketcher.Constraint("Vertical", 35, 3, 38, 3))
sketch4.addConstraint(Sketcher.Constraint("Vertical", 36, 3, 39, 3))
sketch4.addConstraint(Sketcher.Constraint("Vertical", 37, 3, 40, 3))
sketch4.addConstraint(Sketcher.Constraint("Vertical", 38, 3, 41, 3))
sketch4.addConstraint(Sketcher.Constraint("Vertical", 39, 3, 42, 3))
sketch4.addConstraint(Sketcher.Constraint("Vertical", 40, 3, 43, 3))
sketch4.addConstraint(Sketcher.Constraint("Vertical", 41, 3, 44, 3))
sketch4.addConstraint(Sketcher.Constraint("Vertical", 42, 3, 45, 3))
sketch4.addConstraint(Sketcher.Constraint("Vertical", 43, 3, 46, 3))
sketch4.addConstraint(Sketcher.Constraint("Vertical", 44, 3, 47, 3))
sketch4.addConstraint(Sketcher.Constraint("Vertical", 45, 3, 48, 3))
sketch4.addConstraint(Sketcher.Constraint("Vertical", 46, 3, 49, 3))
sketch4.addConstraint(Sketcher.Constraint("Vertical", 47, 3, 50, 3))
sketch4.addConstraint(Sketcher.Constraint("Vertical", 48, 3, 51, 3))
sketch4.addConstraint(Sketcher.Constraint("Vertical", 49, 3, 52, 3))
sketch4.addConstraint(Sketcher.Constraint("Vertical", 50, 3, 53, 3))
sketch4.addConstraint(Sketcher.Constraint("Diameter", 0, 21.75))
sketch4.addConstraint(Sketcher.Constraint("DistanceY", 1, 3, 6, 3, 45.9))
sketch4.addConstraint(Sketcher.Constraint("DistanceY", 0, 3, 7, 3, 45.9))
sketch4.addConstraint(Sketcher.Constraint("DistanceY", 3, 3, 9, 3, 45.9))
sketch4.addConstraint(Sketcher.Constraint("DistanceY", 4, 3, 10, 3, 45.9))
sketch4.addConstraint(Sketcher.Constraint("DistanceY", 6, 3, 12, 3, 45.9))
sketch4.addConstraint(Sketcher.Constraint("DistanceY", 7, 3, 13, 3, 45.9))
sketch4.addConstraint(Sketcher.Constraint("DistanceY", 9, 3, 15, 3, 45.9))
sketch4.addConstraint(Sketcher.Constraint("DistanceY", 10, 3, 16, 3, 45.9))
sketch4.addConstraint(Sketcher.Constraint("DistanceY", 12, 3, 18, 3, 45.9))
sketch4.addConstraint(Sketcher.Constraint("DistanceY", 13, 3, 19, 3, 45.9))
sketch4.addConstraint(Sketcher.Constraint("DistanceY", 15, 3, 21, 3, 45.9))
sketch4.addConstraint(Sketcher.Constraint("DistanceY", 16, 3, 22, 3, 45.9))
sketch4.addConstraint(Sketcher.Constraint("DistanceY", 18, 3, 24, 3, 45.9))
sketch4.addConstraint(Sketcher.Constraint("DistanceY", 19, 3, 25, 3, 45.9))
sketch4.addConstraint(Sketcher.Constraint("DistanceY", 1, 3, 3, 3, 22.95))
sketch4.addConstraint(Sketcher.Constraint("DistanceY", 0, 3, 4, 3, 22.95))
sketch4.addConstraint(Sketcher.Constraint("DistanceX", 2, 3, 28, 3, 26.35))
sketch4.addConstraint(Sketcher.Constraint("DistanceX", 2, 3, -1, 1, 13.175))
sketch4.addConstraint(Sketcher.Constraint("DistanceY", 1, 3, 0, 3, 11.475))
sketch4.addConstraint(Sketcher.Constraint("DistanceY", 0, 3, -1, 1, 82.6375))
sketch4.addConstraint(Sketcher.Constraint("DistanceX", 0, 3, -1, 1, 33.050283))
sketch4.addConstraint(Sketcher.Constraint("DistanceX", 1, 3, -1, 1, 52.925566))
sketch4.addConstraint(Sketcher.Constraint("DistanceX", -1, 1, 27, 3, 33.050283))
sketch4.addConstraint(Sketcher.Constraint("DistanceX", -1, 1, 29, 3, 52.925566))
pocket2 = doc.addObject("PartDesign::Pocket", "Pocket001")
body.addObject(pocket2)
pocket2.Profile = sketch4
pocket2.Length = 5
pocket2.Reversed = True

sketch5 = doc.addObject("Sketcher::SketchObject", "Sketch004")
body.addObject(sketch5)
sketch5.AttachmentSupport = (doc.XZ_Plane, [""])
sketch5.MapMode = "FlatFace"
sketch5.AttachmentOffset = App.Placement(Vector(0, 0, -5), App.Rotation())
add_polygon(sketch5, [(-79.8, -116.8), (-79.8, -110.5), (79.8, -110.5), (79.8, -116.8), (71.5, -116.8), (71.5, -113.7), (-71.5, -113.7), (-71.5, -116.8)])
sketch5.addConstraint(Sketcher.Constraint("Vertical", 0))
sketch5.addConstraint(Sketcher.Constraint("Horizontal", 1))
sketch5.addConstraint(Sketcher.Constraint("Vertical", 2))
sketch5.addConstraint(Sketcher.Constraint("Horizontal", 3))
sketch5.addConstraint(Sketcher.Constraint("Vertical", 4))
sketch5.addConstraint(Sketcher.Constraint("Horizontal", 5))
sketch5.addConstraint(Sketcher.Constraint("Vertical", 6))
sketch5.addConstraint(Sketcher.Constraint("Horizontal", 7))
sketch5.addConstraint(Sketcher.Constraint("Symmetric", 3, 2, 6, 2, -2))
sketch5.addConstraint(Sketcher.Constraint("Equal", 3, 7))
sketch5.addConstraint(Sketcher.Constraint("DistanceX", 5, 2, 5, 1, 143.0))
sketch5.addConstraint(Sketcher.Constraint("DistanceY", 0, 1, 0, 2, 6.35))
sketch5.addConstraint(Sketcher.Constraint("DistanceY", 4, 1, 4, 2, 3.175))
sketch5.addConstraint(Sketcher.Constraint("DistanceY", 0, 2, -1, 1, 110.4875))
sketch5.addConstraint(Sketcher.Constraint("DistanceX", 1, 1, 1, 2, 159.601132))
pad3 = doc.addObject("PartDesign::Pad", "Pad002")
body.addObject(pad3)
pad3.Profile = sketch5
pad3.Length = 10
pad3.Reversed = True

sketch6 = doc.addObject("Sketcher::SketchObject", "Sketch005")
body.addObject(sketch6)
sketch6.AttachmentSupport = (doc.XZ_Plane, [""])
sketch6.MapMode = "FlatFace"
sketch6.AttachmentOffset = App.Placement(Vector(0, 0, -5), App.Rotation())
add_polygon(sketch6, [(-71.5, -116.8), (-71.5, -113.7), (71.5, -113.7), (71.5, -116.8)])
sketch6.addConstraint(Sketcher.Constraint("Vertical", 0))
sketch6.addConstraint(Sketcher.Constraint("Horizontal", 1))
sketch6.addConstraint(Sketcher.Constraint("Vertical", 2))
sketch6.addConstraint(Sketcher.Constraint("Horizontal", 3))
sketch6.addConstraint(Sketcher.Constraint("DistanceX", 1, 1, 1, 2, 143.0))
sketch6.addConstraint(Sketcher.Constraint("DistanceX", 0, 2, -1, 1, 71.5))
sketch6.addConstraint(Sketcher.Constraint("DistanceY", 0, 1, 0, 2, 3.175))
sketch6.addConstraint(Sketcher.Constraint("DistanceY", 0, 2, -1, 1, 113.6625))
pad4 = doc.addObject("PartDesign::Pad", "Pad003")
body.addObject(pad4)
pad4.Profile = sketch6
pad4.Length = 5
pad4.Reversed = True

sketch7 = doc.addObject("Sketcher::SketchObject", "Sketch006")
body.addObject(sketch7)
sketch7.AttachmentSupport = (doc.XY_Plane, [""])
sketch7.MapMode = "FlatFace"
sketch7.AttachmentOffset = App.Placement(Vector(0, 0, -116.8375), App.Rotation())
add_polygon(sketch7, [(59, 7), (59, 0), (-59, 0), (-59, 7)])
sketch7.addConstraint(Sketcher.Constraint("Vertical", 0))
sketch7.addConstraint(Sketcher.Constraint("Horizontal", 1))
sketch7.addConstraint(Sketcher.Constraint("Vertical", 2))
sketch7.addConstraint(Sketcher.Constraint("Horizontal", 3))
sketch7.addConstraint(Sketcher.Constraint("Symmetric", 0, 2, 1, 2, -1, 1))
sketch7.addConstraint(Sketcher.Constraint("DistanceX", 1, 2, 1, 1, 118.0))
sketch7.addConstraint(Sketcher.Constraint("DistanceY", 0, 2, 0, 1, 7.0))
pad5 = doc.addObject("PartDesign::Pad", "Pad004")
body.addObject(pad5)
pad5.Profile = sketch7
pad5.Length = 25
pad5.Reversed = True

doc.recompute()
